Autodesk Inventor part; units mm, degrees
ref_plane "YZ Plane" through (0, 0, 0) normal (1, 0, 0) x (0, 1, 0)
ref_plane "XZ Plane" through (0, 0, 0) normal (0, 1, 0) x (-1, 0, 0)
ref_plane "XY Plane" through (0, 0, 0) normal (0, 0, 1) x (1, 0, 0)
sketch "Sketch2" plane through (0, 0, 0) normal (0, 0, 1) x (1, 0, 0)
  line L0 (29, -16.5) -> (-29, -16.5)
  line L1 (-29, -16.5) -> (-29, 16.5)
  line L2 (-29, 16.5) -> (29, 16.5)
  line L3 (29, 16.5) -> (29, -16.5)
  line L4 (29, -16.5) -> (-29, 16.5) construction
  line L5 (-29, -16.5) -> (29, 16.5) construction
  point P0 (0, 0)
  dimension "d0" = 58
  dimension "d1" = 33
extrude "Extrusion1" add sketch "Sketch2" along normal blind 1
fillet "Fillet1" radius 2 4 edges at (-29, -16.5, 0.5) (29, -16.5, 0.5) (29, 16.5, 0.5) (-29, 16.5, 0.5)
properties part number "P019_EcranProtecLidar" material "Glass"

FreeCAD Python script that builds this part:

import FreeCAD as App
import Part
import Sketcher

V = App.Vector


def edges_at(feature, points):
    """Names of the edges that pass closest to the given points."""
    edges = feature.Shape.Edges
    near = lambda p: min(range(len(edges)), key=lambda i: edges[i].distToShape(Part.Vertex(*p))[0])
    return sorted({f"Edge{near(p) + 1}" for p in points})

doc = App.newDocument("Part")
body = doc.addObject("PartDesign::Body", "Body")

# Sketch on XY plane
sketch1 = doc.addObject("Sketcher::SketchObject", "Sketch")
body.addObject(sketch1)
sketch1.AttachmentSupport = (doc.XY_Plane, [""])
sketch1.MapMode = "FlatFace"
sketch1.addGeometry(Part.LineSegment(V(-29, -16, 0), V(29, -16, 0)), False)
sketch1.addGeometry(Part.LineSegment(V(29, -16, 0), V(29, 16, 0)), False)
sketch1.addGeometry(Part.LineSegment(V(29, 16, 0), V(-29, 16, 0)), False)
sketch1.addGeometry(Part.LineSegment(V(-29, 16, 0), V(-29, -16, 0)), False)
sketch1.addConstraint(Sketcher.Constraint("Coincident", 0, 2, 1, 1))
sketch1.addConstraint(Sketcher.Constraint("Coincident", 1, 2, 2, 1))
sketch1.addConstraint(Sketcher.Constraint("Coincident", 2, 2, 3, 1))
sketch1.addConstraint(Sketcher.Constraint("Coincident", 3, 2, 0, 1))
sketch1.addConstraint(Sketcher.Constraint("Horizontal", 0))
sketch1.addConstraint(Sketcher.Constraint("Vertical", 1))
sketch1.addConstraint(Sketcher.Constraint("Horizontal", 2))
sketch1.addConstraint(Sketcher.Constraint("Vertical", 3))
sketch1.addConstraint(Sketcher.Constraint("Symmetric", 0, 2, 2, 2, -1, 1))
sketch1.addConstraint(Sketcher.Constraint("DistanceX", 0, 1, 0, 2, 58.0))
sketch1.addConstraint(Sketcher.Constraint("DistanceY", 1, 1, 1, 2, 33.0))
pad1 = doc.addObject("PartDesign::Pad", "Pad")
body.addObject(pad1)
pad1.Profile = sketch1
pad1.Length = 1
doc.recompute()

fillet = doc.addObject("PartDesign::Fillet", "Fillet")
body.addObject(fillet)
fillet.Base = (pad1, edges_at(pad1, [
    (-29, -16.5, 0.5),
    (29, -16.5, 0.5),
    (29, 16.5, 0.5),
    (-29, 16.5, 0.5),
]))
fillet.Radius = 2

doc.recompute()
